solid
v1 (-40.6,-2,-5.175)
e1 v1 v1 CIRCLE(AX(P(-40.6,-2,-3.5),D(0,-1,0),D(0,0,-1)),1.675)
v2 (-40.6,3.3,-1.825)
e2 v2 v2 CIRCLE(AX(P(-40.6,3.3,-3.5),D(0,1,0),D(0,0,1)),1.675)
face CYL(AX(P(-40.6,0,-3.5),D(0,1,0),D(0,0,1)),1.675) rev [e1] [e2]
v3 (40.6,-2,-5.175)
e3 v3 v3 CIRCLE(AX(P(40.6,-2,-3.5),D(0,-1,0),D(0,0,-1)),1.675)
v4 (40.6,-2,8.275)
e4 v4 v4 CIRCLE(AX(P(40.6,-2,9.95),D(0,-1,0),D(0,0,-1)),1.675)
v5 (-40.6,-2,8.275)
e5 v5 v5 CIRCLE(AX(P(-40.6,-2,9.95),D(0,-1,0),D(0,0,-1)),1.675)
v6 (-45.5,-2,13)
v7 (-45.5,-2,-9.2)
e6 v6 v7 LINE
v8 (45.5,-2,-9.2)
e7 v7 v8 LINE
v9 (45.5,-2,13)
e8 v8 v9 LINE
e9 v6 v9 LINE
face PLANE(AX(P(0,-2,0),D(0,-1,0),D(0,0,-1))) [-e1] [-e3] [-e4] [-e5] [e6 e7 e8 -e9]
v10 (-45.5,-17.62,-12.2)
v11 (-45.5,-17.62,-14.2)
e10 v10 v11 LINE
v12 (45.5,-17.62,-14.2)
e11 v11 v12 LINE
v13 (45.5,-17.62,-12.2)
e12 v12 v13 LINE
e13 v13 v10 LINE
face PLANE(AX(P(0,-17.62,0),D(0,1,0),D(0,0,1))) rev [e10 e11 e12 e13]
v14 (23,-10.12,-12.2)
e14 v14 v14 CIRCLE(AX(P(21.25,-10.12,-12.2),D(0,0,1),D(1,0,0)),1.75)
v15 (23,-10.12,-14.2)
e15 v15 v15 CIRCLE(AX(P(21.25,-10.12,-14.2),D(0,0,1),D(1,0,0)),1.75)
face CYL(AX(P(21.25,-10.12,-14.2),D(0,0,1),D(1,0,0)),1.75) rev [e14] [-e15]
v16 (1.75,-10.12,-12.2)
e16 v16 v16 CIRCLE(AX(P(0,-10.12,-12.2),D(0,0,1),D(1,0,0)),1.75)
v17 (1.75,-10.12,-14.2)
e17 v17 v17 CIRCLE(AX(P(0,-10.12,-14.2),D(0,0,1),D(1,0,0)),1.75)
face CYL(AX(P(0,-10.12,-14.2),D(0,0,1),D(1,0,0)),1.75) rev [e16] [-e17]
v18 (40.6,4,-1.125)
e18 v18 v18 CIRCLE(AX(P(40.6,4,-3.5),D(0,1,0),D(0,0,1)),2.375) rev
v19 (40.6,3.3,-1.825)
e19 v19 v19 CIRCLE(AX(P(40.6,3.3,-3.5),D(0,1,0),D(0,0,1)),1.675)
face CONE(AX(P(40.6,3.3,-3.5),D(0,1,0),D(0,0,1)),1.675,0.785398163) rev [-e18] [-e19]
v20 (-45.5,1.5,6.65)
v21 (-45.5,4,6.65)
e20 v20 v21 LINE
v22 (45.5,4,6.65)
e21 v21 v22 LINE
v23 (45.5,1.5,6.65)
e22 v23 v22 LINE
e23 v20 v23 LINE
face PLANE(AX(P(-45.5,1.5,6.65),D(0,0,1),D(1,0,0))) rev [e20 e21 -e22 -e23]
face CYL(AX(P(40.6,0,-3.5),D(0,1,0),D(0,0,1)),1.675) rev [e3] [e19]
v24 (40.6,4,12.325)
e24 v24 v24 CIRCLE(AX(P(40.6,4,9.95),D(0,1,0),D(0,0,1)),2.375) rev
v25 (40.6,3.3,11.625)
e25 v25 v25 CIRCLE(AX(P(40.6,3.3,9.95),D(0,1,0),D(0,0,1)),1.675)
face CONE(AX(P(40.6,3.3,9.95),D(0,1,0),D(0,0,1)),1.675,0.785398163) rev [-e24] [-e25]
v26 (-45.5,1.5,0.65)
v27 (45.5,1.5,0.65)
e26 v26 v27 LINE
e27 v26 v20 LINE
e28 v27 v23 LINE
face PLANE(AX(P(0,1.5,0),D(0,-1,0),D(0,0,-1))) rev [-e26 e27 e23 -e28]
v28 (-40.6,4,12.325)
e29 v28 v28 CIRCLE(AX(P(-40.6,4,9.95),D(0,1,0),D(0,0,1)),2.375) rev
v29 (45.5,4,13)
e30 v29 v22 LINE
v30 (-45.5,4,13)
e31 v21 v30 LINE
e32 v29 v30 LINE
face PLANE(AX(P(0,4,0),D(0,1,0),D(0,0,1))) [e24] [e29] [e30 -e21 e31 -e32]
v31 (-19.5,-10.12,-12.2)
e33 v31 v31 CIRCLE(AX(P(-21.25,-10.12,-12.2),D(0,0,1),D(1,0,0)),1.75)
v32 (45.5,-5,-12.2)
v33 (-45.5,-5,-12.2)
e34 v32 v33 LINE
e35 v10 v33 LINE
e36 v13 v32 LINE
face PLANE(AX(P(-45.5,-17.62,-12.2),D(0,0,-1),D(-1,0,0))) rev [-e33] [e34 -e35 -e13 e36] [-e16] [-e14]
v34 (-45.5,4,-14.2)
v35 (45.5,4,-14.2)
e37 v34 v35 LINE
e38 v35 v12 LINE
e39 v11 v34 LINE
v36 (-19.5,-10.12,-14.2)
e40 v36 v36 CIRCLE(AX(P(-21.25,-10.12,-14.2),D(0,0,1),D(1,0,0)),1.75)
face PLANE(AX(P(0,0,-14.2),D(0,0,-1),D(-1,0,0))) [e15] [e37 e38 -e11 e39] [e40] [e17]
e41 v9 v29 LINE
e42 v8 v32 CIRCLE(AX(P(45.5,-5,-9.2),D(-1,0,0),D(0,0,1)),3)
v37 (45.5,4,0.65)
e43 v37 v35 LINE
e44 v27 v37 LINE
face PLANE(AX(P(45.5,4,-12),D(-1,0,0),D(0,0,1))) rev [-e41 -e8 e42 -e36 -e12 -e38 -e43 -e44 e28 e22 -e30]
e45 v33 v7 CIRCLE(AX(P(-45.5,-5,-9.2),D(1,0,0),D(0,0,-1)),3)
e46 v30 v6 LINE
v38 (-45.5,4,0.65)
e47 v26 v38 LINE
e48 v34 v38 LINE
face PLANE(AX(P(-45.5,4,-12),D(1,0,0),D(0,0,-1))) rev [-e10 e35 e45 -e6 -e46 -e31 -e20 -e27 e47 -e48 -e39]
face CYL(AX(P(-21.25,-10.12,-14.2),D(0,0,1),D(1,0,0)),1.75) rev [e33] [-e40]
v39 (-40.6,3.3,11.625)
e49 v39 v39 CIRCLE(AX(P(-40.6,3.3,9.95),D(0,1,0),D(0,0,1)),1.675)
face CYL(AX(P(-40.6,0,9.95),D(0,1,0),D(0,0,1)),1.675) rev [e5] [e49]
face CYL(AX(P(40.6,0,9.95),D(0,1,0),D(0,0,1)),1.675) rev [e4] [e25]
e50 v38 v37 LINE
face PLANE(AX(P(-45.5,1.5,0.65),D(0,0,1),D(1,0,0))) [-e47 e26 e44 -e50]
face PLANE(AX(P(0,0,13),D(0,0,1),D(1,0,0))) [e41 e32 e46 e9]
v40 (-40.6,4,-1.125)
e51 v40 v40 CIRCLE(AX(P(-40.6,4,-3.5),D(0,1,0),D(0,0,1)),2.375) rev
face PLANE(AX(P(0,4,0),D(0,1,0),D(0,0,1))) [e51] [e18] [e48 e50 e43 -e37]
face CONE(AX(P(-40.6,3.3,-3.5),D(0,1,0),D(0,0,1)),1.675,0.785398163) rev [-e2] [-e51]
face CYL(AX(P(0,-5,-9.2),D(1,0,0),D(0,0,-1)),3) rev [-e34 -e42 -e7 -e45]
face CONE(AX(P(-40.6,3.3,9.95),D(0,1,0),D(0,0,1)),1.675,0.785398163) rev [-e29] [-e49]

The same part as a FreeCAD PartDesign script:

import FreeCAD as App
import Part
import Sketcher
from FreeCAD import Vector
Q = App.Units.Quantity


def edges_at(feature, points):
    """Names of the edges that pass closest to the given points."""
    edges = feature.Shape.Edges
    near = lambda p: min(range(len(edges)), key=lambda i: edges[i].distToShape(Part.Vertex(*p))[0])
    return sorted({f"Edge{near(p) + 1}" for p in points})

doc = App.newDocument("Part")
body = doc.addObject("PartDesign::Body", "Body")

sketch1 = body.newObject("Sketcher::SketchObject", "Sketch")
sketch1.AttachmentSupport = (doc.getObject("XZ_Plane"), [""])
sketch1.MapMode = "FlatFace"
sketch1.addGeometry([
    Part.LineSegment(Vector(-46, -12, 0), Vector(-46, 12, 0)),
    Part.LineSegment(Vector(-46, 12, 0), Vector(46, 12, 0)),
    Part.LineSegment(Vector(46, 12, 0), Vector(46, -12, 0)),
    Part.LineSegment(Vector(46, -12, 0), Vector(-46, -12, 0)),
], False)
sketch1.addConstraint([
    Sketcher.Constraint("Coincident", 0, 2, 1, 1),
    Sketcher.Constraint("Coincident", 1, 2, 2, 1),
    Sketcher.Constraint("Coincident", 2, 2, 3, 1),
    Sketcher.Constraint("Coincident", 3, 2, 0, 1),
    Sketcher.Constraint("Vertical", 0),
    Sketcher.Constraint("Horizontal", 1),
    Sketcher.Constraint("Vertical", 2),
    Sketcher.Constraint("Horizontal", 3),
    Sketcher.Constraint("Symmetric", 0, 2, 2, 2, -1, 1),
    Sketcher.Constraint("DistanceX", 1, 1, 1, 2, Q("91 mm")),
    Sketcher.Constraint("DistanceY", 0, 1, 0, 2, Q("24 mm")),
])
pad1 = body.newObject("PartDesign::Pad", "Pad")
pad1.Profile = sketch1
pad1.Length = 4
pad1.Reversed = True

sketch2 = body.newObject("Sketcher::SketchObject", "Sketch001")
sketch2.AttachmentSupport = (doc.getObject("XZ_Plane"), [""])
sketch2.MapMode = "FlatFace"
sketch2.AttachmentOffset = App.Placement(Vector(0, 0, -4), App.Rotation())
sketch2.addGeometry([
    Part.Circle(Vector(-40.6, -3.5, 0), Vector(0, 0, 1), 1.7),
    Part.Circle(Vector(-40.6, 9.9, 0), Vector(0, 0, 1), 1.7),
    Part.Circle(Vector(40.6, -3.5, 0), Vector(0, 0, 1), 1.7),
    Part.Circle(Vector(40.6, 9.9, 0), Vector(0, 0, 1), 1.7),
], False)
sketch2.addConstraint([
    Sketcher.Constraint("Equal", 0, 1),
    Sketcher.Constraint("Equal", 1, 2),
    Sketcher.Constraint("Equal", 2, 3),
    Sketcher.Constraint("Symmetric", 0, 3, 2, 3, -2),
    Sketcher.Constraint("Symmetric", 1, 3, 3, 3, -2),
    Sketcher.Constraint("Vertical", 0, 3, 1, 3),
    Sketcher.Constraint("Diameter", 0, Q("3.35 mm")),
    Sketcher.Constraint("DistanceX", 0, 3, -1, 1, Q("40.6 mm")),
    Sketcher.Constraint("DistanceY", 0, 3, -1, 1, Q("3.5 mm")),
    Sketcher.Constraint("DistanceY", -1, 1, 1, 3, Q("9.95 mm")),
])
pocket1 = body.newObject("PartDesign::Pocket", "Pocket")
pocket1.Profile = sketch2
pocket1.Type = "ThroughAll"
pocket1.Reversed = True

sketch3 = body.newObject("Sketcher::SketchObject", "Sketch002")
sketch3.AttachmentSupport = (doc.getObject("XZ_Plane"), [""])
sketch3.MapMode = "FlatFace"
sketch3.AttachmentOffset = App.Placement(Vector(0, 0, -4), App.Rotation())
sketch3.addGeometry([
    Part.LineSegment(Vector(-46, 1, 0), Vector(-46, 7, 0)),
    Part.LineSegment(Vector(-46, 7, 0), Vector(46, 7, 0)),
    Part.LineSegment(Vector(46, 7, 0), Vector(46, 1, 0)),
    Part.LineSegment(Vector(46, 1, 0), Vector(-46, 1, 0)),
], False)
sketch3.addConstraint([
    Sketcher.Constraint("Coincident", 0, 2, 1, 1),
    Sketcher.Constraint("Coincident", 1, 2, 2, 1),
    Sketcher.Constraint("Coincident", 2, 2, 3, 1),
    Sketcher.Constraint("Coincident", 3, 2, 0, 1),
    Sketcher.Constraint("Vertical", 0),
    Sketcher.Constraint("Horizontal", 1),
    Sketcher.Constraint("Vertical", 2),
    Sketcher.Constraint("Horizontal", 3),
    Sketcher.Constraint("DistanceX", 1, 1, 1, 2, Q("91 mm")),
    Sketcher.Constraint("DistanceY", 0, 1, 0, 2, Q("6 mm")),
    Sketcher.Constraint("DistanceX", 0, 2, -1, 1, Q("45.5 mm")),
    Sketcher.Constraint("DistanceY", -1, 1, 0, 2, Q("6.65 mm")),
])
pocket2 = body.newObject("PartDesign::Pocket", "Pocket001")
pocket2.Profile = sketch3
pocket2.Length = 2.5
pocket2.Reversed = True

sketch4 = body.newObject("Sketcher::SketchObject", "Sketch003")
sketch4.AttachmentSupport = (doc.getObject("XY_Plane"), [""])
sketch4.MapMode = "FlatFace"
sketch4.AttachmentOffset = App.Placement(Vector(0, 0, -12), App.Rotation())
sketch4.addGeometry([
    Part.LineSegment(Vector(45.5, 4, 0), Vector(45.5, 0, 0)),
    Part.LineSegment(Vector(45.5, 0, 0), Vector(-45.5, 0, 0)),
    Part.LineSegment(Vector(-45.5, 0, 0), Vector(-45.5, 4, 0)),
    Part.LineSegment(Vector(-45.5, 4, 0), Vector(45.5, 4, 0)),
], False)
sketch4.addConstraint([
    Sketcher.Constraint("Coincident", 0, 2, 1, 1),
    Sketcher.Constraint("Coincident", 1, 2, 2, 1),
    Sketcher.Constraint("Coincident", 2, 2, 3, 1),
    Sketcher.Constraint("Coincident", 3, 2, 0, 1),
    Sketcher.Constraint("Vertical", 0),
    Sketcher.Constraint("Horizontal", 1),
    Sketcher.Constraint("Vertical", 2),
    Sketcher.Constraint("Horizontal", 3),
    Sketcher.Constraint("Symmetric", 0, 2, 1, 2, -1, 1),
    Sketcher.Constraint("DistanceX", 1, 2, 1, 1, Q("91 mm")),
    Sketcher.Constraint("DistanceY", 0, 2, 0, 1, Q("4 mm")),
])
pad2 = body.newObject("PartDesign::Pad", "Pad001")
pad2.Profile = sketch4
pad2.Length = 2.2
pad2.Reversed = True

sketch5 = body.newObject("Sketcher::SketchObject", "Sketch004")
sketch5.AttachmentSupport = (doc.getObject("XZ_Plane"), [""])
sketch5.MapMode = "FlatFace"
sketch5.addGeometry([
    Part.LineSegment(Vector(-45.5, -12.2, 0), Vector(-45.5, -14.2, 0)),
    Part.LineSegment(Vector(-45.5, -14.2, 0), Vector(45.5, -14.2, 0)),
    Part.LineSegment(Vector(45.5, -14.2, 0), Vector(45.5, -12.2, 0)),
    Part.LineSegment(Vector(45.5, -12.2, 0), Vector(-45.5, -12.2, 0)),
], False)
sketch5.addConstraint([
    Sketcher.Constraint("Coincident", 0, 2, 1, 1),
    Sketcher.Constraint("Coincident", 1, 2, 2, 1),
    Sketcher.Constraint("Coincident", 2, 2, 3, 1),
    Sketcher.Constraint("Coincident", 3, 2, 0, 1),
    Sketcher.Constraint("Vertical", 0),
    Sketcher.Constraint("Horizontal", 1),
    Sketcher.Constraint("Vertical", 2),
    Sketcher.Constraint("Horizontal", 3),
    Sketcher.Constraint("DistanceX", 1, 1, 1, 2, Q("91 mm")),
    Sketcher.Constraint("DistanceY", 0, 2, 0, 1, Q("2 mm")),
    Sketcher.Constraint("DistanceX", 0, 2, -1, 1, Q("45.5 mm")),
    Sketcher.Constraint("DistanceY", 0, 2, -1, 1, Q("14.2 mm")),
])
pad3 = body.newObject("PartDesign::Pad", "Pad002")
pad3.Profile = sketch5
pad3.Length = 17.62

sketch6 = body.newObject("Sketcher::SketchObject", "Sketch005")
sketch6.AttachmentSupport = (doc.getObject("XY_Plane"), [""])
sketch6.MapMode = "FlatFace"
sketch6.AttachmentOffset = App.Placement(Vector(0, 0, -12.2), App.Rotation())
sketch6.addGeometry([
    Part.Circle(Vector(-21.2, -10.1, 0), Vector(0, 0, 1), 1.8),
    Part.Circle(Vector(0, -10.1, 0), Vector(0, 0, 1), 1.8),
    Part.Circle(Vector(21.2, -10.1, 0), Vector(0, 0, 1), 1.8),
], False)
sketch6.addConstraint([
    Sketcher.Constraint("Equal", 0, 1),
    Sketcher.Constraint("Equal", 1, 2),
    Sketcher.Constraint("Symmetric", 0, 3, 2, 3, -2),
    Sketcher.Constraint("PointOnObject", 1, 3, -2),
    Sketcher.Constraint("Horizontal", 0, 3, 1, 3),
    Sketcher.Constraint("Diameter", 0, Q("3.5 mm")),
    Sketcher.Constraint("DistanceX", 0, 3, 2, 3, Q("42.5 mm")),
    Sketcher.Constraint("DistanceY", 0, 3, -1, 1, Q("10.12 mm")),
])
pocket3 = body.newObject("PartDesign::Pocket", "Pocket002")
pocket3.Profile = sketch6
pocket3.Type = "ThroughAll"

sketch7 = body.newObject("Sketcher::SketchObject", "Sketch006")
sketch7.AttachmentSupport = (doc.getObject("XZ_Plane"), [""])
sketch7.MapMode = "FlatFace"
sketch7.addGeometry([
    Part.LineSegment(Vector(-45.5, 12, 0), Vector(-45.5, -12.2, 0)),
    Part.LineSegment(Vector(-45.5, -12.2, 0), Vector(45.5, -12.2, 0)),
    Part.LineSegment(Vector(45.5, -12.2, 0), Vector(45.5, 12, 0)),
    Part.LineSegment(Vector(45.5, 12, 0), Vector(-45.5, 12, 0)),
    Part.Circle(Vector(-40.6, -3.5, 0), Vector(0, 0, 1), 1.7),
    Part.Circle(Vector(40.6, -3.5, 0), Vector(0, 0, 1), 1.7),
    Part.Circle(Vector(-40.6, 9.9, 0), Vector(0, 0, 1), 1.7),
    Part.Circle(Vector(40.6, 9.9, 0), Vector(0, 0, 1), 1.7),
], False)
sketch7.addConstraint([
    Sketcher.Constraint("Coincident", 0, 2, 1, 1),
    Sketcher.Constraint("Coincident", 1, 2, 2, 1),
    Sketcher.Constraint("Coincident", 2, 2, 3, 1),
    Sketcher.Constraint("Coincident", 3, 2, 0, 1),
    Sketcher.Constraint("Vertical", 0),
    Sketcher.Constraint("Horizontal", 1),
    Sketcher.Constraint("Vertical", 2),
    Sketcher.Constraint("Horizontal", 3),
    Sketcher.Constraint("Equal", 4, 5),
    Sketcher.Constraint("Equal", 5, 6),
    Sketcher.Constraint("Equal", 6, 7),
    Sketcher.Constraint("Symmetric", 4, 3, 5, 3, -2),
    Sketcher.Constraint("Symmetric", 6, 3, 7, 3, -2),
    Sketcher.Constraint("Vertical", 4, 3, 6, 3),
    Sketcher.Constraint("Diameter", 4, Q("3.35 mm")),
    Sketcher.Constraint("DistanceX", 1, 1, 1, 2, Q("91 mm")),
    Sketcher.Constraint("DistanceY", 0, 2, 0, 1, Q("24.2 mm")),
    Sketcher.Constraint("DistanceY", -1, 1, 2, 2, Q("12 mm")),
    Sketcher.Constraint("DistanceX", 4, 3, -1, 1, Q("40.6 mm")),
    Sketcher.Constraint("DistanceY", 4, 3, -1, 1, Q("3.5 mm")),
    Sketcher.Constraint("DistanceX", 0, 2, -1, 1, Q("45.5 mm")),
    Sketcher.Constraint("DistanceY", -1, 1, 6, 3, Q("9.95 mm")),
])
pad4 = body.newObject("PartDesign::Pad", "Pad003")
pad4.Profile = sketch7
pad4.Length = 2

sketch8 = body.newObject("Sketcher::SketchObject", "Sketch007")
sketch8.AttachmentSupport = (doc.getObject("XY_Plane"), [""])
sketch8.MapMode = "FlatFace"
sketch8.AttachmentOffset = App.Placement(Vector(0, 0, 12), App.Rotation())
sketch8.addGeometry([
    Part.LineSegment(Vector(-46, 4, 0), Vector(-46, -2, 0)),
    Part.LineSegment(Vector(-46, -2, 0), Vector(46, -2, 0)),
    Part.LineSegment(Vector(46, -2, 0), Vector(46, 4, 0)),
    Part.LineSegment(Vector(46, 4, 0), Vector(-46, 4, 0)),
], False)
sketch8.addConstraint([
    Sketcher.Constraint("Coincident", 0, 2, 1, 1),
    Sketcher.Constraint("Coincident", 1, 2, 2, 1),
    Sketcher.Constraint("Coincident", 2, 2, 3, 1),
    Sketcher.Constraint("Coincident", 3, 2, 0, 1),
    Sketcher.Constraint("Vertical", 0),
    Sketcher.Constraint("Horizontal", 1),
    Sketcher.Constraint("Vertical", 2),
    Sketcher.Constraint("Horizontal", 3),
    Sketcher.Constraint("DistanceX", 1, 1, 1, 2, Q("91 mm")),
    Sketcher.Constraint("DistanceY", 0, 2, 0, 1, Q("6 mm")),
    Sketcher.Constraint("DistanceY", 0, 2, -1, 1, Q("2 mm")),
    Sketcher.Constraint("DistanceX", 0, 2, -1, 1, Q("45.5 mm")),
])
pad5 = body.newObject("PartDesign::Pad", "Pad004")
pad5.Profile = sketch8
pad5.Length = 1
doc.recompute()

chamfer = body.newObject("PartDesign::Chamfer", "Chamfer")
chamfer.Base = (pad5, edges_at(pad5, [
    (40.6, 4, 8.275),
    (-40.6, 4, -5.175),
    (40.6, 4, -5.175),
    (-40.6, 4, 8.275),
]))
chamfer.Size = 0.7
doc.recompute()

fillet = body.newObject("PartDesign::Fillet", "Fillet")
fillet.Base = (chamfer, edges_at(chamfer, [(0, -2, -12.2)]))
fillet.Radius = 3

doc.recompute()
